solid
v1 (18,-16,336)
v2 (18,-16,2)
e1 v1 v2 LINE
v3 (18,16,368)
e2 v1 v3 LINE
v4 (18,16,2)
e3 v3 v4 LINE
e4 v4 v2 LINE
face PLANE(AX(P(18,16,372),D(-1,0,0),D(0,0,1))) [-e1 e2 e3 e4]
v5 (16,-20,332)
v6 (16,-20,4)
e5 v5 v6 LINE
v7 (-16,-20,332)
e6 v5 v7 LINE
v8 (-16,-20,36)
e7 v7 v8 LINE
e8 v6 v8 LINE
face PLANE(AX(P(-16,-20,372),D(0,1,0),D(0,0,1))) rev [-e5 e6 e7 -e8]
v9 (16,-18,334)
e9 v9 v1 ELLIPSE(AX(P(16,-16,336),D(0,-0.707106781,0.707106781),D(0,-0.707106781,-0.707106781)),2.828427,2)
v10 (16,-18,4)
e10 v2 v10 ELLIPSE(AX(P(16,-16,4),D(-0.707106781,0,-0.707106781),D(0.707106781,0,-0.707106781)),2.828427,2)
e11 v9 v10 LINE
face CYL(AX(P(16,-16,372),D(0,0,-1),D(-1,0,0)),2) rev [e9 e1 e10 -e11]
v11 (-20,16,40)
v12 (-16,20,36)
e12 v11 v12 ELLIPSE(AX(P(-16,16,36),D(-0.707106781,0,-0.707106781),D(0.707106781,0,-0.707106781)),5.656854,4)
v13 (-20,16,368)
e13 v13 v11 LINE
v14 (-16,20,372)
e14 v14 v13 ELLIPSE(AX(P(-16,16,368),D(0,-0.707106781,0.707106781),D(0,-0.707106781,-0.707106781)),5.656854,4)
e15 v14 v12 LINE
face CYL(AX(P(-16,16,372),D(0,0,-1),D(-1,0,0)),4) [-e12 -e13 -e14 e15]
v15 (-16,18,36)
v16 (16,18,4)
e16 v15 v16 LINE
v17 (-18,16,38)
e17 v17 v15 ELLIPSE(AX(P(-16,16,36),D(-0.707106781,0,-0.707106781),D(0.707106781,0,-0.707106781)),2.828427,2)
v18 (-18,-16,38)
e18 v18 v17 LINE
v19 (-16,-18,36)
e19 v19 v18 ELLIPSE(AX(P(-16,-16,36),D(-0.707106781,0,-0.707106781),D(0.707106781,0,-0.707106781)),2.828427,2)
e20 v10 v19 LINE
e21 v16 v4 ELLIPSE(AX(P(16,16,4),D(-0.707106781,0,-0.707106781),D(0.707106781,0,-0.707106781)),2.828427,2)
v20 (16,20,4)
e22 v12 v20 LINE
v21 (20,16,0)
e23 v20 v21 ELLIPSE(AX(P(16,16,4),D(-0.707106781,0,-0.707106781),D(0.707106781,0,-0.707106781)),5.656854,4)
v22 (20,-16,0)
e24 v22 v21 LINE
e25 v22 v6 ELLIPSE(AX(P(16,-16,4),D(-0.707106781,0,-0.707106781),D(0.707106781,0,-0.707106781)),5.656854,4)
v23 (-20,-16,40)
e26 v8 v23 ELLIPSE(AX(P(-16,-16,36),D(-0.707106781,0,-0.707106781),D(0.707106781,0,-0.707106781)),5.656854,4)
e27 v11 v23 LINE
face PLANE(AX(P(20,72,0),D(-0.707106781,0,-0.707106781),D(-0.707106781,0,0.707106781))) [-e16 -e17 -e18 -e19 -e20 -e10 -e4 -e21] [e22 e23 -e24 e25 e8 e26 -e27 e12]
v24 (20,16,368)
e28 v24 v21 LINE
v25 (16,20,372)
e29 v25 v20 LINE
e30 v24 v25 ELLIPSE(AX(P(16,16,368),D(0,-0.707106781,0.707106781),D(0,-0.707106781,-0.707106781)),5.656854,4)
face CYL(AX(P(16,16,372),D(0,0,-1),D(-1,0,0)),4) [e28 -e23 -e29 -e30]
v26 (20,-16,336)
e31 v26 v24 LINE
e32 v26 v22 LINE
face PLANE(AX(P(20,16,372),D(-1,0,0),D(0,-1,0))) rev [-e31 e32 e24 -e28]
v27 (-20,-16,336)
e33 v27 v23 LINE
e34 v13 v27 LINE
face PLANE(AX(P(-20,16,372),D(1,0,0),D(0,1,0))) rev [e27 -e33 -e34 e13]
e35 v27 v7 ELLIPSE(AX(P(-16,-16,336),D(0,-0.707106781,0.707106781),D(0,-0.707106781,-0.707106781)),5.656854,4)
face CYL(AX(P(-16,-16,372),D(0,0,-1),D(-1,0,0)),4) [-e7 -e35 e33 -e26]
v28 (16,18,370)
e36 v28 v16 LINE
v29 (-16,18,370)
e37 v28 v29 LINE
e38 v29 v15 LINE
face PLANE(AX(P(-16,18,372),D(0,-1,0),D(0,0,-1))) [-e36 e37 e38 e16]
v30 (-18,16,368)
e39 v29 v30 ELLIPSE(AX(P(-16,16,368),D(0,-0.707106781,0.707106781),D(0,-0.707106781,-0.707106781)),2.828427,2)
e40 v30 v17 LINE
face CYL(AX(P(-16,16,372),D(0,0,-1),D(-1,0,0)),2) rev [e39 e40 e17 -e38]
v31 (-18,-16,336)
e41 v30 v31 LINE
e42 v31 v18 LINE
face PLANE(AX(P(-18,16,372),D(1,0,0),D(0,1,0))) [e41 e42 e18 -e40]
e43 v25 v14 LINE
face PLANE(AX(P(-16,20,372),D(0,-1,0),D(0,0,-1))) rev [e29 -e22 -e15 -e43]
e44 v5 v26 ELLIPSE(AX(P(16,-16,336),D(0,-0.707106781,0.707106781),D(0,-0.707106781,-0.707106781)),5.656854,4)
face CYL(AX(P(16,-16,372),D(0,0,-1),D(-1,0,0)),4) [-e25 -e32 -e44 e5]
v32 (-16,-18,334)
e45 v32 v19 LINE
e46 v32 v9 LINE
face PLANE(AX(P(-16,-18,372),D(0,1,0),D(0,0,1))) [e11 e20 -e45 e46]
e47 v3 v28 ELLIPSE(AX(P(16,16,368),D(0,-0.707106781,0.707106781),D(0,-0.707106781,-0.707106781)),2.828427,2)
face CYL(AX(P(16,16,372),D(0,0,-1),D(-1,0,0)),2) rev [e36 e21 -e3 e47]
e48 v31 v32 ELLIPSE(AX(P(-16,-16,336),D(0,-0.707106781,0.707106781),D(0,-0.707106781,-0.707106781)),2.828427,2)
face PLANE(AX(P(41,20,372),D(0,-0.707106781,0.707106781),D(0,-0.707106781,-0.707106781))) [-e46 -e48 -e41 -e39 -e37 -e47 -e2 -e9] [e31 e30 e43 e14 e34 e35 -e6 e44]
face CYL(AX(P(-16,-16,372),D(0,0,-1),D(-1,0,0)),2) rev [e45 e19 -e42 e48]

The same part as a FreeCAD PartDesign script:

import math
import FreeCAD as App
import Part
import Sketcher
Q = App.Units.Quantity


def add_polygon(sketch, points):
    """Adds a closed chain of lines whose ends are joined by coincident constraints."""
    first, n = sketch.GeometryCount, len(points)
    for a, b in zip(points, points[1:] + points[:1]):
        sketch.addGeometry(Part.LineSegment(App.Vector(*a, 0), App.Vector(*b, 0)), False)
    for i in range(n):
        sketch.addConstraint(Sketcher.Constraint("Coincident", first + i, 2, first + (i + 1) % n, 1))

doc = App.newDocument("Part")
params = doc.addObject("Spreadsheet::Sheet", "Params")
for row, (alias, value) in enumerate([
    ("sketch1_radius", "4 mm"),
    ("sketch1_radius2", "2 mm"),
    ("sketch1_width", "32 mm"),
    ("pad1_length", "372 mm"),
    ("sketch2_width", "40 mm"),
    ("sketch3_width", "40 mm"),
], start=1):
    params.set(f"A{row}", alias)
    params.set(f"B{row}", "=" + value)
    params.setAlias(f"B{row}", alias)

body = doc.addObject("PartDesign::Body", "Body")

sketch1 = body.newObject("Sketcher::SketchObject", "Sketch")
sketch1.AttachmentSupport = (doc.getObject("XY_Plane"), [""])
sketch1.MapMode = "FlatFace"
sketch1.addGeometry(Part.LineSegment(App.Vector(16, 20, 0), App.Vector(-16, 20, 0)), False)
sketch1.addGeometry(Part.ArcOfCircle(Part.Circle(App.Vector(-16, 16, 0), App.Vector(0, 0, 1), 4), math.radians(90), math.radians(180)), False)
sketch1.addGeometry(Part.LineSegment(App.Vector(-20, 16, 0), App.Vector(-20, -16, 0)), False)
sketch1.addGeometry(Part.ArcOfCircle(Part.Circle(App.Vector(-16, -16, 0), App.Vector(0, 0, 1), 4), math.radians(180), math.radians(270)), False)
sketch1.addGeometry(Part.LineSegment(App.Vector(-16, -20, 0), App.Vector(16, -20, 0)), False)
sketch1.addGeometry(Part.ArcOfCircle(Part.Circle(App.Vector(16, -16, 0), App.Vector(0, 0, 1), 4), math.radians(-90), math.radians(0)), False)
sketch1.addGeometry(Part.LineSegment(App.Vector(20, -16, 0), App.Vector(20, 16, 0)), False)
sketch1.addGeometry(Part.ArcOfCircle(Part.Circle(App.Vector(16, 16, 0), App.Vector(0, 0, 1), 4), math.radians(0), math.radians(90)), False)
sketch1.addGeometry(Part.ArcOfCircle(Part.Circle(App.Vector(-16, 16, 0), App.Vector(0, 0, 1), 2), math.radians(90), math.radians(180)), False)
sketch1.addGeometry(Part.LineSegment(App.Vector(-16, 18, 0), App.Vector(16, 18, 0)), False)
sketch1.addGeometry(Part.ArcOfCircle(Part.Circle(App.Vector(16, 16, 0), App.Vector(0, 0, 1), 2), math.radians(0), math.radians(90)), False)
sketch1.addGeometry(Part.LineSegment(App.Vector(18, 16, 0), App.Vector(18, -16, 0)), False)
sketch1.addGeometry(Part.ArcOfCircle(Part.Circle(App.Vector(16, -16, 0), App.Vector(0, 0, 1), 2), math.radians(-90), math.radians(0)), False)
sketch1.addGeometry(Part.LineSegment(App.Vector(16, -18, 0), App.Vector(-16, -18, 0)), False)
sketch1.addGeometry(Part.ArcOfCircle(Part.Circle(App.Vector(-16, -16, 0), App.Vector(0, 0, 1), 2), math.radians(-180), math.radians(-90)), False)
sketch1.addGeometry(Part.LineSegment(App.Vector(-18, -16, 0), App.Vector(-18, 16, 0)), False)
sketch1.addConstraint(Sketcher.Constraint("Tangent", 0, 2, 1, 1))
sketch1.addConstraint(Sketcher.Constraint("Tangent", 1, 2, 2, 1))
sketch1.addConstraint(Sketcher.Constraint("Tangent", 2, 2, 3, 1))
sketch1.addConstraint(Sketcher.Constraint("Tangent", 3, 2, 4, 1))
sketch1.addConstraint(Sketcher.Constraint("Tangent", 4, 2, 5, 1))
sketch1.addConstraint(Sketcher.Constraint("Tangent", 5, 2, 6, 1))
sketch1.addConstraint(Sketcher.Constraint("Tangent", 6, 2, 7, 1))
sketch1.addConstraint(Sketcher.Constraint("Tangent", 7, 2, 0, 1))
sketch1.addConstraint(Sketcher.Constraint("Tangent", 8, 1, 9, 1))
sketch1.addConstraint(Sketcher.Constraint("Tangent", 9, 2, 10, 2))
sketch1.addConstraint(Sketcher.Constraint("Tangent", 10, 1, 11, 1))
sketch1.addConstraint(Sketcher.Constraint("Tangent", 11, 2, 12, 2))
sketch1.addConstraint(Sketcher.Constraint("Tangent", 12, 1, 13, 1))
sketch1.addConstraint(Sketcher.Constraint("Tangent", 13, 2, 14, 2))
sketch1.addConstraint(Sketcher.Constraint("Tangent", 14, 1, 15, 1))
sketch1.addConstraint(Sketcher.Constraint("Tangent", 15, 2, 8, 2))
sketch1.addConstraint(Sketcher.Constraint("Horizontal", 0))
sketch1.addConstraint(Sketcher.Constraint("Vertical", 2))
sketch1.addConstraint(Sketcher.Constraint("Horizontal", 4))
sketch1.addConstraint(Sketcher.Constraint("Vertical", 6))
sketch1.addConstraint(Sketcher.Constraint("Horizontal", 9))
sketch1.addConstraint(Sketcher.Constraint("Vertical", 11))
sketch1.addConstraint(Sketcher.Constraint("Horizontal", 13))
sketch1.addConstraint(Sketcher.Constraint("Vertical", 15))
sketch1.addConstraint(Sketcher.Constraint("Coincident", 8, 3, 1, 3))
sketch1.addConstraint(Sketcher.Constraint("Coincident", 10, 3, 7, 3))
sketch1.addConstraint(Sketcher.Constraint("Coincident", 12, 3, 5, 3))
sketch1.addConstraint(Sketcher.Constraint("Equal", 1, 3))
sketch1.addConstraint(Sketcher.Constraint("Equal", 3, 5))
sketch1.addConstraint(Sketcher.Constraint("Equal", 5, 7))
sketch1.addConstraint(Sketcher.Constraint("Equal", 12, 14))
sketch1.addConstraint(Sketcher.Constraint("Symmetric", 1, 3, 5, 3, -1, 1))
sketch1.addConstraint(Sketcher.Constraint("Equal", 13, 2))
sketch1.addConstraint(Sketcher.Constraint("Radius", 1, Q("4 mm")))
sketch1.addConstraint(Sketcher.Constraint("Radius", 8, Q("2 mm")))
sketch1.addConstraint(Sketcher.Constraint("DistanceX", 0, 2, 0, 1, Q("32 mm")))
sketch1.setExpression("Constraints[33]", "Params.sketch1_radius")
sketch1.setExpression("Constraints[34]", "Params.sketch1_radius2")
sketch1.setExpression("Constraints[35]", "Params.sketch1_width")
pad1 = body.newObject("PartDesign::Pad", "Pad")
pad1.Profile = sketch1
pad1.setExpression("Length", "Params.pad1_length")

sketch2 = body.newObject("Sketcher::SketchObject", "Sketch001")
sketch2.AttachmentSupport = (doc.getObject("YZ_Plane"), [""])
sketch2.MapMode = "FlatFace"
add_polygon(sketch2, [(-20, 332), (20, 372), (-20, 372)])
sketch2.addConstraint(Sketcher.Constraint("Horizontal", 1))
sketch2.addConstraint(Sketcher.Constraint("Vertical", 2))
sketch2.addConstraint(Sketcher.Constraint("Equal", 1, 2))
sketch2.addConstraint(Sketcher.Constraint("DistanceX", 1, 2, 1, 1, Q("40 mm")))
sketch2.addConstraint(Sketcher.Constraint("DistanceX", -1, 1, 0, 2, Q("20 mm")))
sketch2.addConstraint(Sketcher.Constraint("DistanceY", -1, 1, 0, 2, Q("372 mm")))
sketch2.setExpression("Constraints[6]", "Params.sketch2_width")
pocket1 = body.newObject("PartDesign::Pocket", "Pocket")
pocket1.Profile = sketch2
pocket1.Type = "ThroughAll"
pocket1.Midplane = True

sketch3 = body.newObject("Sketcher::SketchObject", "Sketch002")
sketch3.AttachmentSupport = (doc.getObject("XZ_Plane"), [""])
sketch3.MapMode = "FlatFace"
add_polygon(sketch3, [(-20, 40), (20, 0), (-20, 0)])
sketch3.addConstraint(Sketcher.Constraint("Horizontal", 1))
sketch3.addConstraint(Sketcher.Constraint("Vertical", 2))
sketch3.addConstraint(Sketcher.Constraint("Symmetric", 0, 2, 1, 2, -1, 1))
sketch3.addConstraint(Sketcher.Constraint("Equal", 1, 2))
sketch3.addConstraint(Sketcher.Constraint("DistanceX", 1, 2, 1, 1, Q("40 mm")))
sketch3.setExpression("Constraints[7]", "Params.sketch3_width")
pocket2 = body.newObject("PartDesign::Pocket", "Pocket001")
pocket2.Profile = sketch3
pocket2.Type = "ThroughAll"
pocket2.Midplane = True

doc.recompute()
